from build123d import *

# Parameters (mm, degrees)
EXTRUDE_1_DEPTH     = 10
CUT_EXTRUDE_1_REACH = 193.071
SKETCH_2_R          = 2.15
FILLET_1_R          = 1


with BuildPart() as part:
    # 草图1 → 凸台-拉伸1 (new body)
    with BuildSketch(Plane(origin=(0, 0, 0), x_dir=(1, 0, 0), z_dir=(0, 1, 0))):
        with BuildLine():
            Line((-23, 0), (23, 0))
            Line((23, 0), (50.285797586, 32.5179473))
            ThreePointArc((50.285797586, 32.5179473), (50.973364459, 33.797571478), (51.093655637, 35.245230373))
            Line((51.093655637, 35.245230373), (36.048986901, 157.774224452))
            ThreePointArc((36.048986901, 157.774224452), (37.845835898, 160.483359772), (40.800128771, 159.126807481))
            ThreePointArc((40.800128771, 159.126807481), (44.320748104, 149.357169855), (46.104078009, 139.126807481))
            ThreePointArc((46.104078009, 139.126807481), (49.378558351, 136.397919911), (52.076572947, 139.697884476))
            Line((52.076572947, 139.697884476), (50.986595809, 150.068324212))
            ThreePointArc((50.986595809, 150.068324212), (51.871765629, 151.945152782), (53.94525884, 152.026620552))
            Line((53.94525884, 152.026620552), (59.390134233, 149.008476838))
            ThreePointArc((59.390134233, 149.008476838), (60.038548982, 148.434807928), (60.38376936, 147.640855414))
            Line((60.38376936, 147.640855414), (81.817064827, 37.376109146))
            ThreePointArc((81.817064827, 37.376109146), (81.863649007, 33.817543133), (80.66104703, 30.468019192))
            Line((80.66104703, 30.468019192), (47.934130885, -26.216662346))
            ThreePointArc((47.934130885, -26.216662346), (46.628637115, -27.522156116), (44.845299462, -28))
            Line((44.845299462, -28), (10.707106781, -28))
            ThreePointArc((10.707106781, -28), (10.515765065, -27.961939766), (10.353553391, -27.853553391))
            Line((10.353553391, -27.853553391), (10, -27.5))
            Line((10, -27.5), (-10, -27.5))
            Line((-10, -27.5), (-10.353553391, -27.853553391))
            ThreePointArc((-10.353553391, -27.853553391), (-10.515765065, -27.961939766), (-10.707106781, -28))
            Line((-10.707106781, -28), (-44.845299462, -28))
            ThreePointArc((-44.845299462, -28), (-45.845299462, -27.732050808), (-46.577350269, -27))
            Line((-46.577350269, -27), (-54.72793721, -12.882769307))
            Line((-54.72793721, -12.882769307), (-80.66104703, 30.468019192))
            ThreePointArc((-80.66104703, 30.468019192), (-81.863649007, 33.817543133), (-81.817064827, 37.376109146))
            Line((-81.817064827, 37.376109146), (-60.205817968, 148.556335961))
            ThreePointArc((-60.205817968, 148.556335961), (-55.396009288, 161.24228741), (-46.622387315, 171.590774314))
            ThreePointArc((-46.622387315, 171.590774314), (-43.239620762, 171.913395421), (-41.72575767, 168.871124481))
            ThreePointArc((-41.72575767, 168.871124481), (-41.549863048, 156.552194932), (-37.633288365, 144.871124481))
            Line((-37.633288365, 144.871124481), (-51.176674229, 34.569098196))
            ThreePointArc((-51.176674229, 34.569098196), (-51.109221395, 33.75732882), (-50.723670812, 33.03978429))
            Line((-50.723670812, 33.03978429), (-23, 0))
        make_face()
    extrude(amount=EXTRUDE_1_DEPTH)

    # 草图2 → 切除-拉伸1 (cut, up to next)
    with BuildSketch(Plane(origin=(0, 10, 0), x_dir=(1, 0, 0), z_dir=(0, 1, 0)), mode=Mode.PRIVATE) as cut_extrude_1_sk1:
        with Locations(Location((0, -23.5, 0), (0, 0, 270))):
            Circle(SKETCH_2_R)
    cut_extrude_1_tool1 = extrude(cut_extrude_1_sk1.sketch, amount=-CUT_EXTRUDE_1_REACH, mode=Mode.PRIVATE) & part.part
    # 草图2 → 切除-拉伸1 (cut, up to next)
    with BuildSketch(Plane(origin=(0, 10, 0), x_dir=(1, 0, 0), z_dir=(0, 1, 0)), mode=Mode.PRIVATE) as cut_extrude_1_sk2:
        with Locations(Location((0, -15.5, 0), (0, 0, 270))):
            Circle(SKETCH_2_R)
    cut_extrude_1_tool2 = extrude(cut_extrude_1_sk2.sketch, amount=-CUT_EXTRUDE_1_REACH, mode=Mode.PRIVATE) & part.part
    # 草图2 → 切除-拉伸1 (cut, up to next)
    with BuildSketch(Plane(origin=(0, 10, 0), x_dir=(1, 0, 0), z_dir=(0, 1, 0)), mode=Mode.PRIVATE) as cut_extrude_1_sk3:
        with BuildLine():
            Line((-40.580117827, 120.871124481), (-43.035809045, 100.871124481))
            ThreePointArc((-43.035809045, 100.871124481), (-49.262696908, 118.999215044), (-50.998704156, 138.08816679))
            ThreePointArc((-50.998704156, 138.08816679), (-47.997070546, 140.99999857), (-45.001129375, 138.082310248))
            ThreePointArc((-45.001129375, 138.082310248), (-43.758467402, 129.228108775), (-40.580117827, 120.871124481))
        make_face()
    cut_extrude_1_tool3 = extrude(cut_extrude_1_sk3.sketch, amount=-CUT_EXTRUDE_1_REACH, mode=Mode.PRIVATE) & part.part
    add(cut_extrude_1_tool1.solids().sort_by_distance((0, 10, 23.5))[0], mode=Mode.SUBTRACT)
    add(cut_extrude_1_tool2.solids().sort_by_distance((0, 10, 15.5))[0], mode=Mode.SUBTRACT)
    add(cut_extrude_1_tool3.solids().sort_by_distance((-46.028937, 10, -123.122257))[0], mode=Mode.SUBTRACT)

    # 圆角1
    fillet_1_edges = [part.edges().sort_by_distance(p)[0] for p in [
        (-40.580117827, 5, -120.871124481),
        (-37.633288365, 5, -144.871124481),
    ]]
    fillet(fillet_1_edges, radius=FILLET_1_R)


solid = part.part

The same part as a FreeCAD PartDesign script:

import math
import FreeCAD as App
import Part
import Sketcher
from FreeCAD import Vector
Q = App.Units.Quantity


def edges_at(feature, points):
    """Names of the edges that pass closest to the given points."""
    edges = feature.Shape.Edges
    near = lambda p: min(range(len(edges)), key=lambda i: edges[i].distToShape(Part.Vertex(*p))[0])
    return sorted({f"Edge{near(p) + 1}" for p in points})

doc = App.newDocument("Part")
params = doc.addObject("Spreadsheet::Sheet", "Params")
for row, (alias, value) in enumerate([
    ("sketch1_radius", "2 mm"),
    ("sketch1_radius2", "40 mm"),
    ("sketch1_radius3", "3 mm"),
    ("sketch1_radius4", "10 mm"),
    ("sketch1_radius5", "60 mm"),
    ("pad1_length", "10 mm"),
    ("sketch2_diameter", "4.3 mm"),
    ("sketch3_diameter", "4.3 mm"),
    ("sketch4_radius", "40 mm"),
    ("sketch4_radius2", "3 mm"),
    ("sketch4_radius3", "80 mm"),
    ("fillet_radius", "1 mm"),
], start=1):
    params.set(f"A{row}", alias)
    params.set(f"B{row}", "=" + value)
    params.setAlias(f"B{row}", alias)

body = doc.addObject("PartDesign::Body", "Body")

# Sketch on XZ plane
sketch1 = body.newObject("Sketcher::SketchObject", "Sketch")
sketch1.AttachmentSupport = (doc.getObject("XZ_Plane"), [""])
sketch1.MapMode = "FlatFace"
sketch1.addGeometry([
    Part.LineSegment(Vector(23, 0, 0), Vector(-23, 0, 0)),  # 0
    Part.LineSegment(Vector(-23, 0, 0), Vector(-50.723671, -33.039784, 0)),  # 1
    Part.ArcOfCircle(Part.Circle(Vector(-49.191582, -34.32536, 0), Vector(0, 0, 1), 2), math.radians(140), math.radians(187)),  # 2
    Part.LineSegment(Vector(-51.176674, -34.569098, 0), Vector(-37.633288, -144.871124, 0)),  # 3
    Part.ArcOfCircle(Part.Circle(Vector(-2.119019, -163.275925, 0), Vector(0, 0, 1), 40), math.radians(152.605148), math.radians(188.040902)),  # 4
    Part.ArcOfCircle(Part.Circle(Vector(-44.696263, -169.290764, 0), Vector(0, 0, 1), 3), math.radians(-129.944212), math.radians(8.040902)),  # 5
    Part.ArcOfCircle(Part.Circle(Vector(-20.940731, -140.923976, 0), Vector(0, 0, 1), 40), math.radians(-169), math.radians(-129.944212)),  # 6
    Part.LineSegment(Vector(-60.205818, -148.556336, 0), Vector(-81.817065, -37.376109, 0)),  # 7
    Part.ArcOfCircle(Part.Circle(Vector(-72.000793, -35.468019, 0), Vector(0, 0, 1), 10), math.radians(150), math.radians(191)),  # 8
    Part.LineSegment(Vector(-80.661047, -30.468019, 0), Vector(-54.727937, 12.882769, 0)),  # 9
    Part.LineSegment(Vector(-54.727937, 12.882769, 0), Vector(-46.57735, 27, 0)),  # 10
    Part.ArcOfCircle(Part.Circle(Vector(-44.845299, 26, 0), Vector(0, 0, 1), 2), math.radians(90), math.radians(150)),  # 11
    Part.LineSegment(Vector(-44.845299, 28, 0), Vector(-10.707107, 28, 0)),  # 12
    Part.ArcOfCircle(Part.Circle(Vector(-10.707107, 27.5, 0), Vector(0, 0, 1), 0.5), math.radians(45), math.radians(90)),  # 13
    Part.LineSegment(Vector(-10.353553, 27.853553, 0), Vector(-10, 27.5, 0)),  # 14
    Part.LineSegment(Vector(-10, 27.5, 0), Vector(10, 27.5, 0)),  # 15
    Part.LineSegment(Vector(10, 27.5, 0), Vector(10.353553, 27.853553, 0)),  # 16
    Part.ArcOfCircle(Part.Circle(Vector(10.707107, 27.5, 0), Vector(0, 0, 1), 0.5), math.radians(90), math.radians(135)),  # 17
    Part.LineSegment(Vector(10.707107, 28, 0), Vector(44.845299, 28, 0)),  # 18
    Part.ArcOfCircle(Part.Circle(Vector(44.845299, 24.433325, 0), Vector(0, 0, 1), 3.566675), math.radians(30), math.radians(90)),  # 19
    Part.LineSegment(Vector(47.934131, 26.216662, 0), Vector(80.661047, -30.468019, 0)),  # 20
    Part.ArcOfCircle(Part.Circle(Vector(72.000793, -35.468019, 0), Vector(0, 0, 1), 10), math.radians(-11), math.radians(30)),  # 21
    Part.LineSegment(Vector(81.817065, -37.376109, 0), Vector(60.383769, -147.640855, 0)),  # 22
    Part.ArcOfCircle(Part.Circle(Vector(58.420515, -147.259237, 0), Vector(0, 0, 1), 2), math.radians(-61), math.radians(-11)),  # 23
    Part.LineSegment(Vector(59.390134, -149.008477, 0), Vector(53.945259, -152.026621, 0)),  # 24
    Part.ArcOfCircle(Part.Circle(Vector(52.97564, -150.277381, 0), Vector(0, 0, 1), 2), math.radians(174), math.radians(299)),  # 25
    Part.LineSegment(Vector(50.986596, -150.068324, 0), Vector(52.076573, -139.697884, 0)),  # 26
    Part.ArcOfCircle(Part.Circle(Vector(49.093007, -139.384299, 0), Vector(0, 0, 1), 3), math.radians(-6), math.radians(175.076214)),  # 27
    Part.ArcOfCircle(Part.Circle(Vector(-13.674507, -133.976975, 0), Vector(0, 0, 1), 60), math.radians(-24.78181), math.radians(-4.923786)),  # 28
    Part.ArcOfCircle(Part.Circle(Vector(38.530352, -158.078898, 0), Vector(0, 0, 1), 2.5), math.radians(173), math.radians(335.21819)),  # 29
    Part.LineSegment(Vector(36.048987, -157.774224, 0), Vector(51.093656, -35.24523, 0)),  # 30
    Part.ArcOfCircle(Part.Circle(Vector(47.553566, -34.810562, 0), Vector(0, 0, 1), 3.566675), math.radians(-7), math.radians(40)),  # 31
    Part.LineSegment(Vector(50.285798, -32.517947, 0), Vector(23, 0, 0)),  # 32
], False)
sketch1.addConstraint([
    Sketcher.Constraint("Coincident", 0, 2, 1, 1),
    Sketcher.Constraint("Tangent", 1, 2, 2, 1),
    Sketcher.Constraint("Tangent", 2, 2, 3, 1),
    Sketcher.Constraint("Coincident", 3, 2, 4, 1),
    Sketcher.Constraint("Tangent", 4, 2, 5, 2),
    Sketcher.Constraint("Tangent", 5, 1, 6, 2),
    Sketcher.Constraint("Tangent", 6, 1, 7, 1),
    Sketcher.Constraint("Tangent", 7, 2, 8, 2),
    Sketcher.Constraint("Coincident", 8, 1, 9, 1),
    Sketcher.Constraint("Coincident", 9, 2, 10, 1),
    Sketcher.Constraint("Tangent", 10, 2, 11, 2),
    Sketcher.Constraint("Tangent", 11, 1, 12, 1),
    Sketcher.Constraint("Tangent", 12, 2, 13, 2),
    Sketcher.Constraint("Tangent", 13, 1, 14, 1),
    Sketcher.Constraint("Coincident", 14, 2, 15, 1),
    Sketcher.Constraint("Coincident", 15, 2, 16, 1),
    Sketcher.Constraint("Tangent", 16, 2, 17, 2),
    Sketcher.Constraint("Tangent", 17, 1, 18, 1),
    Sketcher.Constraint("Tangent", 18, 2, 19, 2),
    Sketcher.Constraint("Tangent", 19, 1, 20, 1),
    Sketcher.Constraint("Tangent", 20, 2, 21, 2),
    Sketcher.Constraint("Tangent", 21, 1, 22, 1),
    Sketcher.Constraint("Tangent", 22, 2, 23, 2),
    Sketcher.Constraint("Tangent", 23, 1, 24, 1),
    Sketcher.Constraint("Tangent", 24, 2, 25, 2),
    Sketcher.Constraint("Tangent", 25, 1, 26, 1),
    Sketcher.Constraint("Tangent", 26, 2, 27, 1),
    Sketcher.Constraint("Tangent", 27, 2, 28, 2),
    Sketcher.Constraint("Tangent", 28, 1, 29, 2),
    Sketcher.Constraint("Tangent", 29, 1, 30, 1),
    Sketcher.Constraint("Tangent", 30, 2, 31, 1),
    Sketcher.Constraint("Tangent", 31, 2, 32, 1),
    Sketcher.Constraint("Coincident", 32, 2, 0, 1),
    Sketcher.Constraint("Horizontal", 0),
    Sketcher.Constraint("Horizontal", 12),
    Sketcher.Constraint("Horizontal", 15),
    Sketcher.Constraint("Horizontal", 18),
    Sketcher.Constraint("Equal", 4, 6),
    Sketcher.Constraint("Equal", 2, 11),
    Sketcher.Constraint("Equal", 13, 17),
    Sketcher.Constraint("Equal", 8, 21),
    Sketcher.Constraint("Equal", 11, 23),
    Sketcher.Constraint("Equal", 23, 25),
    Sketcher.Constraint("Equal", 5, 27),
    Sketcher.Constraint("Equal", 19, 31),
    Sketcher.Constraint("Symmetric", 0, 2, 32, 2, -1, 1),
    Sketcher.Constraint("Symmetric", 13, 3, 17, 3, -2),
    Sketcher.Constraint("Symmetric", 8, 3, 21, 3, -2),
    Sketcher.Constraint("Perpendicular", 14, 16),
    Sketcher.Constraint("Horizontal", 17, 3, 14, 2),
    Sketcher.Constraint("Horizontal", 13, 1, 16, 2),
    Sketcher.Constraint("Horizontal", 8, 1, 20, 2),
    Sketcher.Constraint("Horizontal", 7, 2, 21, 1),
    Sketcher.Constraint("Equal", 12, 18),
    Sketcher.Constraint("Radius", 2, 2.0),
    Sketcher.Constraint("Radius", 4, 40.0),
    Sketcher.Constraint("Radius", 5, 3.0),
    Sketcher.Constraint("Radius", 8, 10.0),
    Sketcher.Constraint("Radius", 28, 60.0),
    Sketcher.Constraint("Radius", 13, 0.5),
    Sketcher.Constraint("Radius", 29, 2.5),
    Sketcher.Constraint("DistanceX", 0, 2, 0, 1, 46.0),
    Sketcher.Constraint("DistanceX", 15, 1, 15, 2, 20.0),
    Sketcher.Constraint("Angle", 1, Q("-130 deg")),
    Sketcher.Constraint("Angle", 3, Q("-83 deg")),
    Sketcher.Constraint("Angle", 7, Q("101 deg")),
    Sketcher.Constraint("Angle", 10, Q("60 deg")),
    Sketcher.Constraint("Angle", 20, Q("-60 deg")),
    Sketcher.Constraint("Angle", 24, Q("-151 deg")),
    Sketcher.Constraint("Angle", 26, Q("84 deg")),
    Sketcher.Constraint("Angle", 30, Q("83 deg")),
    Sketcher.Constraint("Angle", 32, Q("130 deg")),
    Sketcher.Constraint("DistanceY", -1, 1, 11, 3, 26.0),
    Sketcher.Constraint("DistanceY", 4, 2, 3, 2, 24.0),
    Sketcher.Constraint("DistanceY", 28, 1, 27, 2, 20.0),
    Sketcher.Constraint("Radius", 19, 3.566675),
    Sketcher.Constraint("DistanceY", 6, 3, 28, 3, 6.947001),
    Sketcher.Constraint("DistanceX", 11, 3, -1, 1, 44.845299),
    Sketcher.Constraint("DistanceY", 27, 3, -1, 1, 139.384299),
    Sketcher.Constraint("DistanceY", 2, 2, -1, 1, 34.569098),
    Sketcher.Constraint("DistanceX", 8, 3, 17, 3, 82.7079),
    Sketcher.Constraint("DistanceY", 29, 3, 27, 3, 18.694599),
    Sketcher.Constraint("DistanceY", 4, 3, 3, 2, 18.4048),
    Sketcher.Constraint("DistanceX", 31, 3, 21, 1, 34.263499),
    Sketcher.Constraint("DistanceY", 29, 1, 25, 1, 7.7059),
    Sketcher.Constraint("DistanceY", -1, 1, 9, 2, 12.882769),
])
sketch1.setExpression("Constraints[54]", "Params.sketch1_radius")
sketch1.setExpression("Constraints[55]", "Params.sketch1_radius2")
sketch1.setExpression("Constraints[56]", "Params.sketch1_radius3")
sketch1.setExpression("Constraints[57]", "Params.sketch1_radius4")
sketch1.setExpression("Constraints[58]", "Params.sketch1_radius5")
pad1 = body.newObject("PartDesign::Pad", "Pad")
pad1.Profile = sketch1
pad1.setExpression("Length", "Params.pad1_length")
pad1.Reversed = True

# Sketch on XZ plane
sketch2 = body.newObject("Sketcher::SketchObject", "Sketch001")
sketch2.AttachmentSupport = (doc.getObject("XZ_Plane"), [""])
sketch2.MapMode = "FlatFace"
sketch2.AttachmentOffset = App.Placement(Vector(0, 0, -10), App.Rotation())
sketch2.addGeometry(Part.Circle(Vector(0, 23.5, 0), Vector(0, 0, 1), 2.15), False)
sketch2.addConstraint([
    Sketcher.Constraint("PointOnObject", 0, 3, -2),
    Sketcher.Constraint("Diameter", 0, 4.3),
    Sketcher.Constraint("DistanceY", -1, 1, 0, 3, 23.5),
])
sketch2.setExpression("Constraints[1]", "Params.sketch2_diameter")
pocket1 = body.newObject("PartDesign::Pocket", "Pocket")
pocket1.Profile = sketch2
pocket1.Type = "UpToFirst"
pocket1.Reversed = True

# Sketch on XZ plane
sketch3 = body.newObject("Sketcher::SketchObject", "Sketch002")
sketch3.AttachmentSupport = (doc.getObject("XZ_Plane"), [""])
sketch3.MapMode = "FlatFace"
sketch3.AttachmentOffset = App.Placement(Vector(0, 0, -10), App.Rotation())
sketch3.addGeometry(Part.Circle(Vector(0, 15.5, 0), Vector(0, 0, 1), 2.15), False)
sketch3.addConstraint([
    Sketcher.Constraint("PointOnObject", 0, 3, -2),
    Sketcher.Constraint("Diameter", 0, 4.3),
    Sketcher.Constraint("DistanceY", -1, 1, 0, 3, 15.5),
])
sketch3.setExpression("Constraints[1]", "Params.sketch3_diameter")
pocket2 = body.newObject("PartDesign::Pocket", "Pocket001")
pocket2.Profile = sketch3
pocket2.Type = "UpToFirst"
pocket2.Reversed = True

# Sketch on XZ plane
sketch4 = body.newObject("Sketcher::SketchObject", "Sketch003")
sketch4.AttachmentSupport = (doc.getObject("XZ_Plane"), [""])
sketch4.MapMode = "FlatFace"
sketch4.AttachmentOffset = App.Placement(Vector(0, 0, -10), App.Rotation())
sketch4.addGeometry([
    Part.LineSegment(Vector(-43.035809, -100.871124, 0), Vector(-40.580118, -120.871124, 0)),
    Part.ArcOfCircle(Part.Circle(Vector(-5.016188, -139.17978, 0), Vector(0, 0, 1), 40), math.radians(152.760152), math.radians(178.427793)),
    Part.ArcOfCircle(Part.Circle(Vector(-48, -138, 0), Vector(0, 0, 1), 3), math.radians(-178.315896), math.radians(-1.572207)),
    Part.ArcOfCircle(Part.Circle(Vector(28.96674, -135.737052, 0), Vector(0, 0, 1), 80), math.radians(154.162256), math.radians(181.684104)),
], False)
sketch4.addConstraint([
    Sketcher.Constraint("Coincident", 0, 2, 1, 1),
    Sketcher.Constraint("Tangent", 1, 2, 2, 2),
    Sketcher.Constraint("Tangent", 2, 1, 3, 2),
    Sketcher.Constraint("Coincident", 3, 1, 0, 1),
    Sketcher.Constraint("Radius", 1, 40.0),
    Sketcher.Constraint("Radius", 2, 3.0),
    Sketcher.Constraint("Radius", 3, 80.0),
    Sketcher.Constraint("Angle", 0, Q("-83 deg")),
    Sketcher.Constraint("DistanceX", 2, 3, -1, 1, 48.0),
    Sketcher.Constraint("DistanceY", 2, 3, -1, 1, 138.0),
    Sketcher.Constraint("DistanceY", 0, 2, 3, 1, 20.0),
    Sketcher.Constraint("DistanceY", 1, 3, -1, 1, 139.17978),
    Sketcher.Constraint("DistanceX", 3, 1, -1, 1, 43.035809),
])
sketch4.setExpression("Constraints[4]", "Params.sketch4_radius")
sketch4.setExpression("Constraints[5]", "Params.sketch4_radius2")
sketch4.setExpression("Constraints[6]", "Params.sketch4_radius3")
pocket3 = body.newObject("PartDesign::Pocket", "Pocket002")
pocket3.Profile = sketch4
pocket3.Type = "UpToFirst"
pocket3.Reversed = True
doc.recompute()

fillet = body.newObject("PartDesign::Fillet", "Fillet")
fillet.Base = (pocket3, edges_at(pocket3, [(-40.58, 5, -120.871), (-37.633, 5, -144.871)]))
fillet.setExpression("Radius", "Params.fillet_radius")

doc.recompute()
